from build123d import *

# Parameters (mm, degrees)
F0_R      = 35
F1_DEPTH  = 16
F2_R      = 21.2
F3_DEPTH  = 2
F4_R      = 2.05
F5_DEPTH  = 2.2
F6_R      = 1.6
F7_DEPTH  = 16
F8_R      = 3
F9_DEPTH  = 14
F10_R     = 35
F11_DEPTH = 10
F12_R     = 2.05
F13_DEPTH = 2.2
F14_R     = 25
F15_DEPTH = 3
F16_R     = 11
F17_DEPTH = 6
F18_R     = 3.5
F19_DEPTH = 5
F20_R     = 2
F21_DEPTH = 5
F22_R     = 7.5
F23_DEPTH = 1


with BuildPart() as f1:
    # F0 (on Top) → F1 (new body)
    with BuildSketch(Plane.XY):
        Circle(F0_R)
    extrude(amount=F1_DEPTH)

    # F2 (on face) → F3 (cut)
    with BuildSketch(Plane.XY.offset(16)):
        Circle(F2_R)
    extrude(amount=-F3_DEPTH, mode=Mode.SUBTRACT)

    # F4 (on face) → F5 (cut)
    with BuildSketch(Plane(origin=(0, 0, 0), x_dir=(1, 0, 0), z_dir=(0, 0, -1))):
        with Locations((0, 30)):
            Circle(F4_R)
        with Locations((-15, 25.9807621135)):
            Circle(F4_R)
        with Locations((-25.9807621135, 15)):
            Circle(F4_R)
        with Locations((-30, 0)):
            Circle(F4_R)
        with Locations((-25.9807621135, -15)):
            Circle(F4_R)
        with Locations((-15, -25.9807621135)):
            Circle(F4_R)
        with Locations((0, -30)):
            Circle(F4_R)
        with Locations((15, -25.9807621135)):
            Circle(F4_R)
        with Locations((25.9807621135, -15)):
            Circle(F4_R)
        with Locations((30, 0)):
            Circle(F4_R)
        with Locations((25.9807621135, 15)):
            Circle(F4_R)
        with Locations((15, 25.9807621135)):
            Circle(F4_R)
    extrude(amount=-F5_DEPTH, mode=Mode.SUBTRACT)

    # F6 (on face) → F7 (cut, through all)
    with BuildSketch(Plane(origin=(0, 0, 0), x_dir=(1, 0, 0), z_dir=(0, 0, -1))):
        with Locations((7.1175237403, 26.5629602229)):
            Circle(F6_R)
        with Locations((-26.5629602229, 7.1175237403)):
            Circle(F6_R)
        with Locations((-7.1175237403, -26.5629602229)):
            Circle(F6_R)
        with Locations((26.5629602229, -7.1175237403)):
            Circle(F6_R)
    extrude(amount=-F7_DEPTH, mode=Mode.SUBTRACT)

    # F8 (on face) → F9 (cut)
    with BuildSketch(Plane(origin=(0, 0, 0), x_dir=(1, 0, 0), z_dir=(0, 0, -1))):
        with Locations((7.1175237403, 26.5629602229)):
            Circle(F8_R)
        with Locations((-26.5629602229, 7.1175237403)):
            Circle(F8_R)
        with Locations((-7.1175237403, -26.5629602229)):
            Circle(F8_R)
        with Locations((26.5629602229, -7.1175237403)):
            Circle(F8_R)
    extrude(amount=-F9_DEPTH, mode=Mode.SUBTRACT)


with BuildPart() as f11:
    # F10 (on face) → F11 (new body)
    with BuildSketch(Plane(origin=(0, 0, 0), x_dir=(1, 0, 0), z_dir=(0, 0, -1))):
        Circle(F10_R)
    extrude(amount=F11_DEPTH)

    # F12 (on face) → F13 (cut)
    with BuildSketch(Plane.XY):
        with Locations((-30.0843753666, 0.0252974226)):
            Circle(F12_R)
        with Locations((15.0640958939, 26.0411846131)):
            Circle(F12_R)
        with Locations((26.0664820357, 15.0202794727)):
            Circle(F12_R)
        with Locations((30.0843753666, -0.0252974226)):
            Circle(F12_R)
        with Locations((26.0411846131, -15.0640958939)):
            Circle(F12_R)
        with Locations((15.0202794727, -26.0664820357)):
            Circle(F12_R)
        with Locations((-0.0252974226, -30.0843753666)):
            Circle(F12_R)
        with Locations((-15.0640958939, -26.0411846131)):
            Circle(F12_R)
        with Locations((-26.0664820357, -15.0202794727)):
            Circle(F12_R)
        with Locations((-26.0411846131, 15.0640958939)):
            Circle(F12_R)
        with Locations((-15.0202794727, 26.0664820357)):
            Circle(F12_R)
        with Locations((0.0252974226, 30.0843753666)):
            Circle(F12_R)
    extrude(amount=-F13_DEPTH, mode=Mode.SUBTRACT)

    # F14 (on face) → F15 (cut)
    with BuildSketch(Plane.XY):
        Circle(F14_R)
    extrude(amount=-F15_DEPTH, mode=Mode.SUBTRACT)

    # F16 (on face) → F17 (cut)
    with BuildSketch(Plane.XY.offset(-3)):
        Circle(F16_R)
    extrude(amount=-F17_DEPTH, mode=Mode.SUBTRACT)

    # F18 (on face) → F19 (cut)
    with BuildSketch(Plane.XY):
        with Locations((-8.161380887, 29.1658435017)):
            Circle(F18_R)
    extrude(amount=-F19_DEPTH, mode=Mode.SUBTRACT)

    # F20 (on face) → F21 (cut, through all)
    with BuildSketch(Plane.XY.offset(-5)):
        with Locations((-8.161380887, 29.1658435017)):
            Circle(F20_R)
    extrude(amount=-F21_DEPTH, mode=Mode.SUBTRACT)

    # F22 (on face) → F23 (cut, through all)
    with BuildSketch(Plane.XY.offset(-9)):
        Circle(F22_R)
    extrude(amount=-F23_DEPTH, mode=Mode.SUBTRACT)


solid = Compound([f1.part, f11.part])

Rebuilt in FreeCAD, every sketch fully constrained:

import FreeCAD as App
import Part
import Sketcher

V = App.Vector

doc = App.newDocument("Part")
params = doc.addObject("Spreadsheet::Sheet", "Params")
for row, (alias, value) in enumerate([
    ("sketch1_diameter", "70 mm"),
    ("pad1_length", "16 mm"),
    ("sketch2_diameter", "42.4 mm"),
    ("pocket1_length", "2 mm"),
    ("sketch3_diameter", "4.1 mm"),
    ("pocket2_length", "2.2 mm"),
    ("sketch4_diameter", "3.2 mm"),
    ("sketch5_diameter", "6 mm"),
    ("pocket4_length", "14 mm"),
    ("sketch6_diameter", "70 mm"),
    ("pad2_length", "10 mm"),
    ("sketch7_diameter", "4.1 mm"),
    ("pocket5_length", "2.2 mm"),
    ("sketch8_diameter", "50 mm"),
    ("pocket6_length", "3 mm"),
    ("sketch9_diameter", "22 mm"),
    ("pocket7_length", "6 mm"),
    ("sketch10_diameter", "7 mm"),
    ("pocket8_length", "5 mm"),
    ("sketch11_diameter", "4 mm"),
    ("sketch12_diameter", "15 mm"),
], start=1):
    params.set(f"A{row}", alias)
    params.set(f"B{row}", "=" + value)
    params.setAlias(f"B{row}", alias)

body = doc.addObject("PartDesign::Body", "Body")

sketch1 = body.newObject("Sketcher::SketchObject", "Sketch")
sketch1.AttachmentSupport = (doc.getObject("XY_Plane"), [""])
sketch1.MapMode = "FlatFace"
sketch1.addGeometry(Part.Circle(V(0, 0, 0), V(0, 0, 1), 35), False)
sketch1.addConstraint([
    Sketcher.Constraint("Coincident", 0, 3, -1, 1),
    Sketcher.Constraint("Diameter", 0, 70.0),
])
sketch1.setExpression("Constraints[1]", "Params.sketch1_diameter")
pad1 = body.newObject("PartDesign::Pad", "Pad")
pad1.Profile = sketch1
pad1.setExpression("Length", "Params.pad1_length")

sketch2 = body.newObject("Sketcher::SketchObject", "Sketch001")
sketch2.AttachmentSupport = (doc.getObject("XY_Plane"), [""])
sketch2.MapMode = "FlatFace"
sketch2.AttachmentOffset = App.Placement(V(0, 0, 16), App.Rotation())
sketch2.addGeometry(Part.Circle(V(0, 0, 0), V(0, 0, 1), 21.2), False)
sketch2.addConstraint([
    Sketcher.Constraint("Coincident", 0, 3, -1, 1),
    Sketcher.Constraint("Diameter", 0, 42.4),
])
sketch2.setExpression("Constraints[1]", "Params.sketch2_diameter")
pocket1 = body.newObject("PartDesign::Pocket", "Pocket")
pocket1.Profile = sketch2
pocket1.setExpression("Length", "Params.pocket1_length")

sketch3 = body.newObject("Sketcher::SketchObject", "Sketch002")
sketch3.AttachmentSupport = (doc.getObject("XY_Plane"), [""])
sketch3.MapMode = "FlatFace"
sketch3.addGeometry([
    Part.Circle(V(0, -30, 0), V(0, 0, 1), 2.05),
    Part.Circle(V(-15, -25.980762, 0), V(0, 0, 1), 2.05),
    Part.Circle(V(-25.980762, -15, 0), V(0, 0, 1), 2.05),
    Part.Circle(V(-30, 0, 0), V(0, 0, 1), 2.05),
    Part.Circle(V(-25.980762, 15, 0), V(0, 0, 1), 2.05),
    Part.Circle(V(-15, 25.980762, 0), V(0, 0, 1), 2.05),
    Part.Circle(V(0, 30, 0), V(0, 0, 1), 2.05),
    Part.Circle(V(15, 25.980762, 0), V(0, 0, 1), 2.05),
    Part.Circle(V(25.980762, 15, 0), V(0, 0, 1), 2.05),
    Part.Circle(V(30, 0, 0), V(0, 0, 1), 2.05),
    Part.Circle(V(25.980762, -15, 0), V(0, 0, 1), 2.05),
    Part.Circle(V(15, -25.980762, 0), V(0, 0, 1), 2.05),
], False)
sketch3.addConstraint([
    Sketcher.Constraint("Equal", 0, 1),
    Sketcher.Constraint("Equal", 1, 2),
    Sketcher.Constraint("Equal", 2, 3),
    Sketcher.Constraint("Equal", 3, 4),
    Sketcher.Constraint("Equal", 4, 5),
    Sketcher.Constraint("Equal", 5, 6),
    Sketcher.Constraint("Equal", 6, 7),
    Sketcher.Constraint("Equal", 7, 8),
    Sketcher.Constraint("Equal", 8, 9),
    Sketcher.Constraint("Equal", 9, 10),
    Sketcher.Constraint("Equal", 10, 11),
    Sketcher.Constraint("Symmetric", 0, 3, 6, 3, -1, 1),
    Sketcher.Constraint("Symmetric", 1, 3, 7, 3, -1, 1),
    Sketcher.Constraint("Symmetric", 2, 3, 8, 3, -1, 1),
    Sketcher.Constraint("Symmetric", 3, 3, 9, 3, -1, 1),
    Sketcher.Constraint("Symmetric", 4, 3, 10, 3, -1, 1),
    Sketcher.Constraint("Symmetric", 5, 3, 11, 3, -1, 1),
    Sketcher.Constraint("Symmetric", 5, 3, 7, 3, -2),
    Sketcher.Constraint("Symmetric", 4, 3, 8, 3, -2),
    Sketcher.Constraint("PointOnObject", 0, 3, -2),
    Sketcher.Constraint("PointOnObject", 3, 3, -1),
    Sketcher.Constraint("Diameter", 0, 4.1),
    Sketcher.Constraint("DistanceY", 0, 3, -1, 1, 30.0),
    Sketcher.Constraint("DistanceX", 1, 3, -1, 1, 15.0),
    Sketcher.Constraint("DistanceY", 2, 3, -1, 1, 15.0),
    Sketcher.Constraint("DistanceX", 3, 3, -1, 1, 30.0),
    Sketcher.Constraint("DistanceY", 1, 3, -1, 1, 25.980762),
    Sketcher.Constraint("DistanceX", 2, 3, -1, 1, 25.980762),
])
sketch3.setExpression("Constraints[21]", "Params.sketch3_diameter")
pocket2 = body.newObject("PartDesign::Pocket", "Pocket001")
pocket2.Profile = sketch3
pocket2.setExpression("Length", "Params.pocket2_length")
pocket2.Reversed = True

sketch4 = body.newObject("Sketcher::SketchObject", "Sketch003")
sketch4.AttachmentSupport = (doc.getObject("XY_Plane"), [""])
sketch4.MapMode = "FlatFace"
sketch4.addGeometry([
    Part.Circle(V(7.117524, -26.56296, 0), V(0, 0, 1), 1.6),
    Part.Circle(V(-26.56296, -7.117524, 0), V(0, 0, 1), 1.6),
    Part.Circle(V(-7.117524, 26.56296, 0), V(0, 0, 1), 1.6),
    Part.Circle(V(26.56296, 7.117524, 0), V(0, 0, 1), 1.6),
], False)
sketch4.addConstraint([
    Sketcher.Constraint("Equal", 0, 1),
    Sketcher.Constraint("Equal", 1, 2),
    Sketcher.Constraint("Equal", 2, 3),
    Sketcher.Constraint("Symmetric", 0, 3, 2, 3, -1, 1),
    Sketcher.Constraint("Symmetric", 1, 3, 3, 3, -1, 1),
    Sketcher.Constraint("Diameter", 0, 3.2),
    Sketcher.Constraint("DistanceY", 0, 3, -1, 1, 26.56296),
    Sketcher.Constraint("DistanceX", 1, 3, -1, 1, 26.56296),
    Sketcher.Constraint("DistanceX", -1, 1, 0, 3, 7.117524),
    Sketcher.Constraint("DistanceY", 1, 3, -1, 1, 7.117524),
])
sketch4.setExpression("Constraints[5]", "Params.sketch4_diameter")
pocket3 = body.newObject("PartDesign::Pocket", "Pocket002")
pocket3.Profile = sketch4
pocket3.Type = "ThroughAll"
pocket3.Reversed = True

sketch5 = body.newObject("Sketcher::SketchObject", "Sketch004")
sketch5.AttachmentSupport = (doc.getObject("XY_Plane"), [""])
sketch5.MapMode = "FlatFace"
sketch5.addGeometry([
    Part.Circle(V(7.117524, -26.56296, 0), V(0, 0, 1), 3),
    Part.Circle(V(-26.56296, -7.117524, 0), V(0, 0, 1), 3),
    Part.Circle(V(-7.117524, 26.56296, 0), V(0, 0, 1), 3),
    Part.Circle(V(26.56296, 7.117524, 0), V(0, 0, 1), 3),
], False)
sketch5.addConstraint([
    Sketcher.Constraint("Equal", 0, 1),
    Sketcher.Constraint("Equal", 1, 2),
    Sketcher.Constraint("Equal", 2, 3),
    Sketcher.Constraint("Symmetric", 0, 3, 2, 3, -1, 1),
    Sketcher.Constraint("Symmetric", 1, 3, 3, 3, -1, 1),
    Sketcher.Constraint("Diameter", 0, 6.0),
    Sketcher.Constraint("DistanceY", 0, 3, -1, 1, 26.56296),
    Sketcher.Constraint("DistanceX", 1, 3, -1, 1, 26.56296),
    Sketcher.Constraint("DistanceX", -1, 1, 0, 3, 7.117524),
    Sketcher.Constraint("DistanceY", 1, 3, -1, 1, 7.117524),
])
sketch5.setExpression("Constraints[5]", "Params.sketch5_diameter")
pocket4 = body.newObject("PartDesign::Pocket", "Pocket003")
pocket4.Profile = sketch5
pocket4.setExpression("Length", "Params.pocket4_length")
pocket4.Reversed = True
body2 = doc.addObject("PartDesign::Body", "Body001")

sketch6 = body2.newObject("Sketcher::SketchObject", "Sketch005")
sketch6.AttachmentSupport = (doc.getObject("XY_Plane001"), [""])
sketch6.MapMode = "FlatFace"
sketch6.addGeometry(Part.Circle(V(0, 0, 0), V(0, 0, 1), 35), False)
sketch6.addConstraint([
    Sketcher.Constraint("Coincident", 0, 3, -1, 1),
    Sketcher.Constraint("Diameter", 0, 70.0),
])
sketch6.setExpression("Constraints[1]", "Params.sketch6_diameter")
pad2 = body2.newObject("PartDesign::Pad", "Pad001")
pad2.Profile = sketch6
pad2.setExpression("Length", "Params.pad2_length")
pad2.Reversed = True

sketch7 = body2.newObject("Sketcher::SketchObject", "Sketch006")
sketch7.AttachmentSupport = (doc.getObject("XY_Plane001"), [""])
sketch7.MapMode = "FlatFace"
sketch7.addGeometry([
    Part.Circle(V(-30.084375, 0.025297, 0), V(0, 0, 1), 2.05),
    Part.Circle(V(15.064096, 26.041185, 0), V(0, 0, 1), 2.05),
    Part.Circle(V(26.066482, 15.020279, 0), V(0, 0, 1), 2.05),
    Part.Circle(V(30.084375, -0.025297, 0), V(0, 0, 1), 2.05),
    Part.Circle(V(26.041185, -15.064096, 0), V(0, 0, 1), 2.05),
    Part.Circle(V(15.020279, -26.066482, 0), V(0, 0, 1), 2.05),
    Part.Circle(V(-0.025297, -30.084375, 0), V(0, 0, 1), 2.05),
    Part.Circle(V(-15.064096, -26.041185, 0), V(0, 0, 1), 2.05),
    Part.Circle(V(-26.066482, -15.020279, 0), V(0, 0, 1), 2.05),
    Part.Circle(V(-26.041185, 15.064096, 0), V(0, 0, 1), 2.05),
    Part.Circle(V(-15.020279, 26.066482, 0), V(0, 0, 1), 2.05),
    Part.Circle(V(0.025297, 30.084375, 0), V(0, 0, 1), 2.05),
], False)
sketch7.addConstraint([
    Sketcher.Constraint("Equal", 0, 1),
    Sketcher.Constraint("Equal", 1, 2),
    Sketcher.Constraint("Equal", 2, 3),
    Sketcher.Constraint("Equal", 3, 4),
    Sketcher.Constraint("Equal", 4, 5),
    Sketcher.Constraint("Equal", 5, 6),
    Sketcher.Constraint("Equal", 6, 7),
    Sketcher.Constraint("Equal", 7, 8),
    Sketcher.Constraint("Equal", 8, 9),
    Sketcher.Constraint("Equal", 9, 10),
    Sketcher.Constraint("Equal", 10, 11),
    Sketcher.Constraint("Symmetric", 0, 3, 3, 3, -1, 1),
    Sketcher.Constraint("Symmetric", 1, 3, 7, 3, -1, 1),
    Sketcher.Constraint("Symmetric", 2, 3, 8, 3, -1, 1),
    Sketcher.Constraint("Symmetric", 4, 3, 9, 3, -1, 1),
    Sketcher.Constraint("Symmetric", 5, 3, 10, 3, -1, 1),
    Sketcher.Constraint("Symmetric", 6, 3, 11, 3, -1, 1),
    Sketcher.Constraint("Diameter", 0, 4.1),
    Sketcher.Constraint("DistanceY", 4, 3, 3, 3, 15.038798),
    Sketcher.Constraint("DistanceX", 7, 3, 6, 3, 15.038798),
    Sketcher.Constraint("DistanceY", -1, 1, 2, 3, 15.020279),
    Sketcher.Constraint("DistanceX", -1, 1, 5, 3, 15.020279),
    Sketcher.Constraint("DistanceX", 0, 3, 1, 3, 45.148471),
    Sketcher.Constraint("DistanceX", 1, 3, 3, 3, 15.020279),
    Sketcher.Constraint("DistanceX", 4, 3, 3, 3, 4.043191),
    Sketcher.Constraint("DistanceY", 4, 3, 1, 3, 41.105281),
    Sketcher.Constraint("DistanceY", 5, 3, 2, 3, 41.086762),
    Sketcher.Constraint("DistanceY", 5, 3, 0, 3, 26.091779),
    Sketcher.Constraint("DistanceY", 6, 3, 4, 3, 15.020279),
    Sketcher.Constraint("DistanceX", 6, 3, 2, 3, 26.091779),
])
sketch7.setExpression("Constraints[17]", "Params.sketch7_diameter")
pocket5 = body2.newObject("PartDesign::Pocket", "Pocket004")
pocket5.Profile = sketch7
pocket5.setExpression("Length", "Params.pocket5_length")

sketch8 = body2.newObject("Sketcher::SketchObject", "Sketch007")
sketch8.AttachmentSupport = (doc.getObject("XY_Plane001"), [""])
sketch8.MapMode = "FlatFace"
sketch8.addGeometry(Part.Circle(V(0, 0, 0), V(0, 0, 1), 25), False)
sketch8.addConstraint([
    Sketcher.Constraint("Coincident", 0, 3, -1, 1),
    Sketcher.Constraint("Diameter", 0, 50.0),
])
sketch8.setExpression("Constraints[1]", "Params.sketch8_diameter")
pocket6 = body2.newObject("PartDesign::Pocket", "Pocket005")
pocket6.Profile = sketch8
pocket6.setExpression("Length", "Params.pocket6_length")

sketch9 = body2.newObject("Sketcher::SketchObject", "Sketch008")
sketch9.AttachmentSupport = (doc.getObject("XY_Plane001"), [""])
sketch9.MapMode = "FlatFace"
sketch9.AttachmentOffset = App.Placement(V(0, 0, -3), App.Rotation())
sketch9.addGeometry(Part.Circle(V(0, 0, 0), V(0, 0, 1), 11), False)
sketch9.addConstraint([
    Sketcher.Constraint("Coincident", 0, 3, -1, 1),
    Sketcher.Constraint("Diameter", 0, 22.0),
])
sketch9.setExpression("Constraints[1]", "Params.sketch9_diameter")
pocket7 = body2.newObject("PartDesign::Pocket", "Pocket006")
pocket7.Profile = sketch9
pocket7.setExpression("Length", "Params.pocket7_length")

sketch10 = body2.newObject("Sketcher::SketchObject", "Sketch009")
sketch10.AttachmentSupport = (doc.getObject("XY_Plane001"), [""])
sketch10.MapMode = "FlatFace"
sketch10.addGeometry(Part.Circle(V(-8.161381, 29.165844, 0), V(0, 0, 1), 3.5), False)
sketch10.addConstraint([
    Sketcher.Constraint("Diameter", 0, 7.0),
    Sketcher.Constraint("DistanceX", 0, 3, -1, 1, 8.161381),
    Sketcher.Constraint("DistanceY", -1, 1, 0, 3, 29.165844),
])
sketch10.setExpression("Constraints[0]", "Params.sketch10_diameter")
pocket8 = body2.newObject("PartDesign::Pocket", "Pocket007")
pocket8.Profile = sketch10
pocket8.setExpression("Length", "Params.pocket8_length")

sketch11 = body2.newObject("Sketcher::SketchObject", "Sketch010")
sketch11.AttachmentSupport = (doc.getObject("XY_Plane001"), [""])
sketch11.MapMode = "FlatFace"
sketch11.AttachmentOffset = App.Placement(V(0, 0, -5), App.Rotation())
sketch11.addGeometry(Part.Circle(V(-8.161381, 29.165844, 0), V(0, 0, 1), 2), False)
sketch11.addConstraint([
    Sketcher.Constraint("Diameter", 0, 4.0),
    Sketcher.Constraint("DistanceX", 0, 3, -1, 1, 8.161381),
    Sketcher.Constraint("DistanceY", -1, 1, 0, 3, 29.165844),
])
sketch11.setExpression("Constraints[0]", "Params.sketch11_diameter")
pocket9 = body2.newObject("PartDesign::Pocket", "Pocket008")
pocket9.Profile = sketch11
pocket9.Type = "ThroughAll"

sketch12 = body2.newObject("Sketcher::SketchObject", "Sketch011")
sketch12.AttachmentSupport = (doc.getObject("XY_Plane001"), [""])
sketch12.MapMode = "FlatFace"
sketch12.AttachmentOffset = App.Placement(V(0, 0, -9), App.Rotation())
sketch12.addGeometry(Part.Circle(V(0, 0, 0), V(0, 0, 1), 7.5), False)
sketch12.addConstraint([
    Sketcher.Constraint("Coincident", 0, 3, -1, 1),
    Sketcher.Constraint("Diameter", 0, 15.0),
])
sketch12.setExpression("Constraints[1]", "Params.sketch12_diameter")
pocket10 = body2.newObject("PartDesign::Pocket", "Pocket009")
pocket10.Profile = sketch12
pocket10.Type = "ThroughAll"

doc.recompute()
